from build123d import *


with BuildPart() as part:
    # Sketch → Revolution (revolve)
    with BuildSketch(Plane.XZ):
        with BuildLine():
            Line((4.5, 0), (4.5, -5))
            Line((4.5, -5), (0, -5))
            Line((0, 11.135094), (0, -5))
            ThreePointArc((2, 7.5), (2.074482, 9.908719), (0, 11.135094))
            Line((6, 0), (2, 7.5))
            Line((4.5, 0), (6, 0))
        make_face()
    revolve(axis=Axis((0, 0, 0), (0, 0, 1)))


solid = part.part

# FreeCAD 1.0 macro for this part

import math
import FreeCAD as App
import Part
import Sketcher

V = App.Vector
Q = App.Units.Quantity

doc = App.newDocument("Part")
body = doc.addObject("PartDesign::Body", "Body")

# Sketch on XZ plane
sketch1 = doc.addObject("Sketcher::SketchObject", "Sketch")
body.addObject(sketch1)
sketch1.AttachmentSupport = (doc.XZ_Plane, [""])
sketch1.MapMode = "FlatFace"
sketch1.addGeometry(Part.LineSegment(V(4.5, -5, 0), V(4.5, 0, 0)), False)
sketch1.addGeometry(Part.LineSegment(V(4.5, 0, 0), V(6, 0, 0)), False)
sketch1.addGeometry(Part.LineSegment(V(6, 0, 0), V(2, 7.5, 0)), False)
sketch1.addGeometry(Part.ArcOfCircle(Part.Circle(V(0, 8.8, 0), V(0, 0, 1), 2.4), math.radians(-32), math.radians(90)), False)
sketch1.addGeometry(Part.LineSegment(V(0, 11.1, 0), V(0, -5, 0)), False)
sketch1.addGeometry(Part.LineSegment(V(0, -5, 0), V(4.5, -5, 0)), False)
sketch1.addConstraint(Sketcher.Constraint("Coincident", 0, 2, 1, 1))
sketch1.addConstraint(Sketcher.Constraint("Coincident", 1, 2, 2, 1))
sketch1.addConstraint(Sketcher.Constraint("Coincident", 2, 2, 3, 1))
sketch1.addConstraint(Sketcher.Constraint("Coincident", 3, 2, 4, 1))
sketch1.addConstraint(Sketcher.Constraint("Coincident", 4, 2, 5, 1))
sketch1.addConstraint(Sketcher.Constraint("Coincident", 5, 2, 0, 1))
sketch1.addConstraint(Sketcher.Constraint("Vertical", 0))
sketch1.addConstraint(Sketcher.Constraint("Horizontal", 1))
sketch1.addConstraint(Sketcher.Constraint("Vertical", 4))
sketch1.addConstraint(Sketcher.Constraint("Horizontal", 5))
sketch1.addConstraint(Sketcher.Constraint("PointOnObject", 3, 3, -2))
sketch1.addConstraint(Sketcher.Constraint("PointOnObject", 0, 2, -1))
sketch1.addConstraint(Sketcher.Constraint("PointOnObject", 3, 2, -2))
sketch1.addConstraint(Sketcher.Constraint("DistanceY", 0, 1, 0, 2, Q("5 mm")))
sketch1.addConstraint(Sketcher.Constraint("DistanceX", 1, 1, 1, 2, Q("1.5 mm")))
sketch1.addConstraint(Sketcher.Constraint("DistanceX", 5, 1, 5, 2, Q("4.5 mm")))
sketch1.addConstraint(Sketcher.Constraint("DistanceX", -1, 1, 2, 2, Q("2 mm")))
sketch1.addConstraint(Sketcher.Constraint("Distance", 2, Q("8.5 mm")))
sketch1.addConstraint(Sketcher.Constraint("Radius", 3, Q("2.367739 mm")))
revolution = doc.addObject("PartDesign::Revolution", "Revolution")
body.addObject(revolution)
revolution.Profile = sketch1
revolution.ReferenceAxis = (sketch1, ["V_Axis"])
revolution.Angle = 360

doc.recompute()
